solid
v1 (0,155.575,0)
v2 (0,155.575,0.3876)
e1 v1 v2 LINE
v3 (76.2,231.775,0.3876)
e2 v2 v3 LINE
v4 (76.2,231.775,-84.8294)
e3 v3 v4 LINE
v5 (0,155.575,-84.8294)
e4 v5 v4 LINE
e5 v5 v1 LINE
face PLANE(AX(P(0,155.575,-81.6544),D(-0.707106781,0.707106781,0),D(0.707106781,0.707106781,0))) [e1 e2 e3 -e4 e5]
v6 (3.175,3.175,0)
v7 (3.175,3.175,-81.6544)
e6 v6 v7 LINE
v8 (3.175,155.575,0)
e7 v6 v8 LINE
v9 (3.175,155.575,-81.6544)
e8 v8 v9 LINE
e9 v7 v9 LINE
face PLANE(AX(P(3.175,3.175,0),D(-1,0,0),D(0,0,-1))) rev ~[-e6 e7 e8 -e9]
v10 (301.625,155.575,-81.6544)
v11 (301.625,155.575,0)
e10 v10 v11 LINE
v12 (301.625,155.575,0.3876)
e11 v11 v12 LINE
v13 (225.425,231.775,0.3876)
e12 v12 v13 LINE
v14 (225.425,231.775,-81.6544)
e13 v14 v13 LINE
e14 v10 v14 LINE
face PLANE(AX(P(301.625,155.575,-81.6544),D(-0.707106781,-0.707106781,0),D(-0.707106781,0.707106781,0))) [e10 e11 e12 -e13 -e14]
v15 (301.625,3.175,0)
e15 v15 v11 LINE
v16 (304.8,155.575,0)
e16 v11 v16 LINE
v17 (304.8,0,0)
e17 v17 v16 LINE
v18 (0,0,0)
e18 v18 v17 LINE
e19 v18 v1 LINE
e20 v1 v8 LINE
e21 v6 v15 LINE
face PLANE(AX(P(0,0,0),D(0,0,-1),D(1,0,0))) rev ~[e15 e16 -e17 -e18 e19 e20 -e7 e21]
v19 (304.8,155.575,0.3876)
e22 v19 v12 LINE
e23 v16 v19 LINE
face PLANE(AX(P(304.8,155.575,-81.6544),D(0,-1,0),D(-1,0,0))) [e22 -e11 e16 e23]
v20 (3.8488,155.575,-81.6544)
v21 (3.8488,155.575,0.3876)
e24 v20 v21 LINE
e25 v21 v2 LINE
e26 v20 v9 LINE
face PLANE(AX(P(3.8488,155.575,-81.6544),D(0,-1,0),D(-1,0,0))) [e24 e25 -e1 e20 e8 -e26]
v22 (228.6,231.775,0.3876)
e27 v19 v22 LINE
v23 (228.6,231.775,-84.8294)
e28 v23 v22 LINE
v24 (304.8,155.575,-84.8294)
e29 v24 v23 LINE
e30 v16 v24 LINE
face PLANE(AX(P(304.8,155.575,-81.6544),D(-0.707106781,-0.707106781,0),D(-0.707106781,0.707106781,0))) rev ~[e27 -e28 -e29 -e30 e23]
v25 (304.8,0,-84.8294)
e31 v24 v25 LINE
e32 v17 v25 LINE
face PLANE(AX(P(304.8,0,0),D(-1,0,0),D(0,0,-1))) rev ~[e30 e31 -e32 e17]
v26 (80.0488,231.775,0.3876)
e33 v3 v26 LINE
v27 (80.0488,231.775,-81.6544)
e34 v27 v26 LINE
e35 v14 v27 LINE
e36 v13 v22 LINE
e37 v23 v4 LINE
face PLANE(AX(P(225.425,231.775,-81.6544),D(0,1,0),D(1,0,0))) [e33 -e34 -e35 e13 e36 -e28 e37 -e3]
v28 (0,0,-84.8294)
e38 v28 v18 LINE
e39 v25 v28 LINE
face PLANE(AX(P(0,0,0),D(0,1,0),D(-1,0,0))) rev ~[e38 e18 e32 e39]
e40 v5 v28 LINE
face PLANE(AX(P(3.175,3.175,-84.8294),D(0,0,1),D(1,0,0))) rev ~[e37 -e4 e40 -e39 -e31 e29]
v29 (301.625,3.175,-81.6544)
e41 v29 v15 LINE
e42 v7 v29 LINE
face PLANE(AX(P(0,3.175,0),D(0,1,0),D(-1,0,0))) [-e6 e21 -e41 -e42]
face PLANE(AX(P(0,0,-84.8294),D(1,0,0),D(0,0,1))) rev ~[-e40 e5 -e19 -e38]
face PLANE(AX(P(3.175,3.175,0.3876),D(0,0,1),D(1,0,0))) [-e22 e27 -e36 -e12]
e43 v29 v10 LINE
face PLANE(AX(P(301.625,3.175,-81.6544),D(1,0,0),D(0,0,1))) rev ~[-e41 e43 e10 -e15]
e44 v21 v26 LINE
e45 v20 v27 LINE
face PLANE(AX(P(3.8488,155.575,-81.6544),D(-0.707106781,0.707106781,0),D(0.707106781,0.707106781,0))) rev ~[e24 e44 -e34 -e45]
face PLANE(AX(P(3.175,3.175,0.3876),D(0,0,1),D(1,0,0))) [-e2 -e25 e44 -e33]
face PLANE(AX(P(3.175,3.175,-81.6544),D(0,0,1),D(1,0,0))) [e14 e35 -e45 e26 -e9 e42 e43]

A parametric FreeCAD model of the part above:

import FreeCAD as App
import Part
import Sketcher
Q = App.Units.Quantity


def add_polygon(sketch, points):
    """Adds a closed chain of lines whose ends are joined by coincident constraints."""
    first, n = sketch.GeometryCount, len(points)
    for a, b in zip(points, points[1:] + points[:1]):
        sketch.addGeometry(Part.LineSegment(App.Vector(*a, 0), App.Vector(*b, 0)), False)
    for i in range(n):
        sketch.addConstraint(Sketcher.Constraint("Coincident", first + i, 2, first + (i + 1) % n, 1))

doc = App.newDocument("Part")
body = doc.addObject("PartDesign::Body", "Body")

sketch1 = body.newObject("Sketcher::SketchObject", "Sketch")
sketch1.AttachmentSupport = (doc.getObject("XZ_Plane"), [""])
sketch1.MapMode = "FlatFace"
add_polygon(sketch1, [(0, -85), (0, 0), (305, 0), (305, -85)])
sketch1.addConstraint(Sketcher.Constraint("Vertical", 0))
sketch1.addConstraint(Sketcher.Constraint("Horizontal", 1))
sketch1.addConstraint(Sketcher.Constraint("Vertical", 2))
sketch1.addConstraint(Sketcher.Constraint("Horizontal", 3))
sketch1.addConstraint(Sketcher.Constraint("Coincident", 0, 2, -1, 1))
sketch1.addConstraint(Sketcher.Constraint("DistanceX", 1, 1, 1, 2, Q("12 in")))
sketch1.addConstraint(Sketcher.Constraint("DistanceY", 0, 1, 0, 2, 84.8294))
pad1 = body.newObject("PartDesign::Pad", "Pad")
pad1.Profile = sketch1
pad1.Length = Q("0.125 in")
pad1.Reversed = True

sketch2 = body.newObject("Sketcher::SketchObject", "Sketch001")
sketch2.AttachmentSupport = (doc.getObject("XZ_Plane"), [""])
sketch2.MapMode = "FlatFace"
sketch2.AttachmentOffset = App.Placement(App.Vector(0, 0, -0.125 * 25.4), App.Rotation())
add_polygon(sketch2, [(0, -84.8), (0, 0), (3.2, 0), (3.2, -81.7), (301.6, -81.7), (301.6, 0), (304.8, 0), (304.8, -84.8)])
sketch2.addConstraint(Sketcher.Constraint("Vertical", 0))
sketch2.addConstraint(Sketcher.Constraint("Horizontal", 1))
sketch2.addConstraint(Sketcher.Constraint("Vertical", 2))
sketch2.addConstraint(Sketcher.Constraint("Horizontal", 3))
sketch2.addConstraint(Sketcher.Constraint("Vertical", 4))
sketch2.addConstraint(Sketcher.Constraint("Horizontal", 5))
sketch2.addConstraint(Sketcher.Constraint("Vertical", 6))
sketch2.addConstraint(Sketcher.Constraint("Horizontal", 7))
sketch2.addConstraint(Sketcher.Constraint("Coincident", 0, 2, -1, 1))
sketch2.addConstraint(Sketcher.Constraint("PointOnObject", 4, 2, -1))
sketch2.addConstraint(Sketcher.Constraint("Equal", 1, 5))
sketch2.addConstraint(Sketcher.Constraint("DistanceX", 1, 1, 1, 2, Q("0.125 in")))
sketch2.addConstraint(Sketcher.Constraint("DistanceX", 7, 2, 7, 1, Q("12 in")))
sketch2.addConstraint(Sketcher.Constraint("DistanceY", 6, 2, 3, 2, Q("0.125 in")))
sketch2.addConstraint(Sketcher.Constraint("DistanceY", 0, 1, 0, 2, 84.8294))
pad2 = body.newObject("PartDesign::Pad", "Pad001")
pad2.Profile = sketch2
pad2.Length = Q("6 in")
pad2.Reversed = True

sketch3 = body.newObject("Sketcher::SketchObject", "Sketch002")
sketch3.AttachmentSupport = (doc.getObject("XY_Plane"), [""])
sketch3.MapMode = "FlatFace"
sketch3.AttachmentOffset = App.Placement(App.Vector(0, 0, -81.6544), App.Rotation())
add_polygon(sketch3, [(76, 232), (0, 156), (305, 156), (229, 232)])
sketch3.addConstraint(Sketcher.Constraint("Horizontal", 1))
sketch3.addConstraint(Sketcher.Constraint("Horizontal", 3))
sketch3.addConstraint(Sketcher.Constraint("PointOnObject", 0, 2, -2))
sketch3.addConstraint(Sketcher.Constraint("Perpendicular", 0, 2))
sketch3.addConstraint(Sketcher.Constraint("Equal", 0, 2))
sketch3.addConstraint(Sketcher.Constraint("DistanceX", 3, 2, 3, 1, Q("6 in")))
sketch3.addConstraint(Sketcher.Constraint("DistanceX", -1, 1, 3, 2, Q("3 in")))
sketch3.addConstraint(Sketcher.Constraint("DistanceY", -1, 1, 0, 2, Q("6.125 in")))
pad3 = body.newObject("PartDesign::Pad", "Pad002")
pad3.Profile = sketch3
pad3.Length = Q("0.125 in")
pad3.Reversed = True

sketch4 = body.newObject("Sketcher::SketchObject", "Sketch003")
sketch4.AttachmentSupport = (doc.getObject("XY_Plane"), [""])
sketch4.MapMode = "FlatFace"
sketch4.AttachmentOffset = App.Placement(App.Vector(0, 0, -81.6544), App.Rotation())
add_polygon(sketch4, [(0, 155.6), (3.8, 155.6), (80, 231.8), (76.2, 231.8)])
sketch4.addConstraint(Sketcher.Constraint("Horizontal", 0))
sketch4.addConstraint(Sketcher.Constraint("Horizontal", 2))
sketch4.addConstraint(Sketcher.Constraint("PointOnObject", 3, 2, -2))
sketch4.addConstraint(Sketcher.Constraint("Parallel", 1, 3))
sketch4.addConstraint(Sketcher.Constraint("DistanceX", -1, 1, 2, 2, Q("3 in")))
sketch4.addConstraint(Sketcher.Constraint("Angle", 1, Q("45 deg")))
sketch4.addConstraint(Sketcher.Constraint("DistanceY", -1, 1, 0, 2, Q("6.125 in")))
sketch4.addConstraint(Sketcher.Constraint("DistanceX", 0, 1, 0, 2, 3.8488))
pad4 = body.newObject("PartDesign::Pad", "Pad003")
pad4.Profile = sketch4
pad4.Length = Q("3.23 in")

sketch5 = body.newObject("Sketcher::SketchObject", "Sketch004")
sketch5.AttachmentSupport = (doc.getObject("XY_Plane"), [""])
sketch5.MapMode = "FlatFace"
sketch5.AttachmentOffset = App.Placement(App.Vector(0, 0, -81.6544), App.Rotation())
add_polygon(sketch5, [(301.6, 155.6), (304.8, 155.6), (228.6, 231.8), (225.4, 231.8)])
sketch5.addConstraint(Sketcher.Constraint("Horizontal", 0))
sketch5.addConstraint(Sketcher.Constraint("Horizontal", 2))
sketch5.addConstraint(Sketcher.Constraint("Parallel", 1, 3))
sketch5.addConstraint(Sketcher.Constraint("DistanceX", 0, 1, 0, 2, Q("0.125 in")))
sketch5.addConstraint(Sketcher.Constraint("DistanceX", -1, 1, 0, 2, Q("12 in")))
sketch5.addConstraint(Sketcher.Constraint("DistanceX", -1, 1, 1, 2, Q("9 in")))
sketch5.addConstraint(Sketcher.Constraint("Angle", 1, Q("135 deg")))
sketch5.addConstraint(Sketcher.Constraint("DistanceY", -1, 1, 0, 2, Q("6.125 in")))
pad5 = body.newObject("PartDesign::Pad", "Pad004")
pad5.Profile = sketch5
pad5.Length = Q("3.23 in")

doc.recompute()
